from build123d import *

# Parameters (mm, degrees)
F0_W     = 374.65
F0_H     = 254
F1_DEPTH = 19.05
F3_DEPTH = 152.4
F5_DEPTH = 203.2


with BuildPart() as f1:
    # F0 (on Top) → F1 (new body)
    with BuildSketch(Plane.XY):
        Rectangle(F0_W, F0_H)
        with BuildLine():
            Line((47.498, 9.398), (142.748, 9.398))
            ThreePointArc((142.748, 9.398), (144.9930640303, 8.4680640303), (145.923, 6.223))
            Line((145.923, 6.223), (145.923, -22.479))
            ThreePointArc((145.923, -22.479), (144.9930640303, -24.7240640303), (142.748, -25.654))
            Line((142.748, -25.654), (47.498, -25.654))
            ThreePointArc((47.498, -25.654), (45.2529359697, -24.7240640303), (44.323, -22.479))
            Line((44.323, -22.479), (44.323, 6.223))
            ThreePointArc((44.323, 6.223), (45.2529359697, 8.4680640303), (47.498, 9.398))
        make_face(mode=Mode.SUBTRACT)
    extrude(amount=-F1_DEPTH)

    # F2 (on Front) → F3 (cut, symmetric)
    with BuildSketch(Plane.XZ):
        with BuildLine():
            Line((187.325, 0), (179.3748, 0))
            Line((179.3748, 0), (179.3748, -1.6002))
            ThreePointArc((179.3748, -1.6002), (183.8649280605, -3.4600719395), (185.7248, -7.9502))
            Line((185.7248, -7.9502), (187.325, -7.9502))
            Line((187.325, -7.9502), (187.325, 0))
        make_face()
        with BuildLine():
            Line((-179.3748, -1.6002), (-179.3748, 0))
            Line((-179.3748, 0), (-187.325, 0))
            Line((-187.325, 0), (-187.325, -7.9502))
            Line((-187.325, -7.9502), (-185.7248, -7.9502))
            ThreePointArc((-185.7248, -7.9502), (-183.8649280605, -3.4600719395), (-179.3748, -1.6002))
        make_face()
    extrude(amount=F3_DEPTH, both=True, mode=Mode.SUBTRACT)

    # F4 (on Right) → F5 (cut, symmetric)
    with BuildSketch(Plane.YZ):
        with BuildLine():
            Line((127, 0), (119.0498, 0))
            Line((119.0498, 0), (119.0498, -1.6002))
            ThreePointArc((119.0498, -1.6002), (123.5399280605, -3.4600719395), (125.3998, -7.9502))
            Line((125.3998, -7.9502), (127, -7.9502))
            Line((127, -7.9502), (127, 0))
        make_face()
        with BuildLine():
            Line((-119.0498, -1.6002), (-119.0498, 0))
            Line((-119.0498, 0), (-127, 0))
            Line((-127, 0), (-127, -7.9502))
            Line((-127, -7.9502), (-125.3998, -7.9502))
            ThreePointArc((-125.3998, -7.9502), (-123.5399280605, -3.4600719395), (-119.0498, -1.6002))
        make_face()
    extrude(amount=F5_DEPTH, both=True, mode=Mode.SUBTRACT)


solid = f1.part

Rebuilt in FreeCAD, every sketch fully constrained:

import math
import FreeCAD as App
import Part
import Sketcher
Q = App.Units.Quantity

doc = App.newDocument("Part")
body = doc.addObject("PartDesign::Body", "Body")

# Sketch on XY plane
sketch1 = body.newObject("Sketcher::SketchObject", "Sketch")
sketch1.AttachmentSupport = (doc.getObject("XY_Plane"), [""])
sketch1.MapMode = "FlatFace"
sketch1.addGeometry(Part.LineSegment(App.Vector(-187.3, 127, 0), App.Vector(-187.3, -127, 0)), False)
sketch1.addGeometry(Part.LineSegment(App.Vector(-187.3, -127, 0), App.Vector(187.3, -127, 0)), False)
sketch1.addGeometry(Part.LineSegment(App.Vector(187.3, -127, 0), App.Vector(187.3, 127, 0)), False)
sketch1.addGeometry(Part.LineSegment(App.Vector(187.3, 127, 0), App.Vector(-187.3, 127, 0)), False)
sketch1.addGeometry(Part.ArcOfCircle(Part.Circle(App.Vector(47.5, 6.2, 0), App.Vector(0, 0, 1), 3.2), math.radians(90), math.radians(180)), False)
sketch1.addGeometry(Part.LineSegment(App.Vector(47.5, 9.4, 0), App.Vector(142.7, 9.4, 0)), False)
sketch1.addGeometry(Part.ArcOfCircle(Part.Circle(App.Vector(142.7, 6.2, 0), App.Vector(0, 0, 1), 3.2), math.radians(0), math.radians(90)), False)
sketch1.addGeometry(Part.LineSegment(App.Vector(145.9, 6.2, 0), App.Vector(145.9, -22.5, 0)), False)
sketch1.addGeometry(Part.ArcOfCircle(Part.Circle(App.Vector(142.7, -22.5, 0), App.Vector(0, 0, 1), 3.2), math.radians(-90), math.radians(0)), False)
sketch1.addGeometry(Part.LineSegment(App.Vector(142.7, -25.7, 0), App.Vector(47.5, -25.7, 0)), False)
sketch1.addGeometry(Part.ArcOfCircle(Part.Circle(App.Vector(47.5, -22.5, 0), App.Vector(0, 0, 1), 3.2), math.radians(180), math.radians(270)), False)
sketch1.addGeometry(Part.LineSegment(App.Vector(44.3, -22.5, 0), App.Vector(44.3, 6.2, 0)), False)
sketch1.addConstraint(Sketcher.Constraint("Coincident", 0, 2, 1, 1))
sketch1.addConstraint(Sketcher.Constraint("Coincident", 1, 2, 2, 1))
sketch1.addConstraint(Sketcher.Constraint("Coincident", 2, 2, 3, 1))
sketch1.addConstraint(Sketcher.Constraint("Coincident", 3, 2, 0, 1))
sketch1.addConstraint(Sketcher.Constraint("Tangent", 4, 1, 5, 1))
sketch1.addConstraint(Sketcher.Constraint("Tangent", 5, 2, 6, 2))
sketch1.addConstraint(Sketcher.Constraint("Tangent", 6, 1, 7, 1))
sketch1.addConstraint(Sketcher.Constraint("Tangent", 7, 2, 8, 2))
sketch1.addConstraint(Sketcher.Constraint("Tangent", 8, 1, 9, 1))
sketch1.addConstraint(Sketcher.Constraint("Tangent", 9, 2, 10, 2))
sketch1.addConstraint(Sketcher.Constraint("Tangent", 10, 1, 11, 1))
sketch1.addConstraint(Sketcher.Constraint("Tangent", 11, 2, 4, 2))
sketch1.addConstraint(Sketcher.Constraint("Vertical", 0))
sketch1.addConstraint(Sketcher.Constraint("Horizontal", 1))
sketch1.addConstraint(Sketcher.Constraint("Vertical", 2))
sketch1.addConstraint(Sketcher.Constraint("Horizontal", 3))
sketch1.addConstraint(Sketcher.Constraint("Horizontal", 5))
sketch1.addConstraint(Sketcher.Constraint("Vertical", 7))
sketch1.addConstraint(Sketcher.Constraint("Horizontal", 9))
sketch1.addConstraint(Sketcher.Constraint("Vertical", 11))
sketch1.addConstraint(Sketcher.Constraint("Equal", 4, 6))
sketch1.addConstraint(Sketcher.Constraint("Equal", 6, 8))
sketch1.addConstraint(Sketcher.Constraint("Equal", 8, 10))
sketch1.addConstraint(Sketcher.Constraint("Symmetric", 0, 2, 2, 2, -1, 1))
sketch1.addConstraint(Sketcher.Constraint("DistanceY", 0, 2, 0, 1, Q("10 in")))
sketch1.addConstraint(Sketcher.Constraint("Radius", 4, Q("0.125 in")))
sketch1.addConstraint(Sketcher.Constraint("DistanceX", 1, 1, 1, 2, Q("14.75 in")))
sketch1.addConstraint(Sketcher.Constraint("DistanceX", 5, 1, 5, 2, Q("3.75 in")))
sketch1.addConstraint(Sketcher.Constraint("DistanceY", 7, 2, 7, 1, Q("1.13 in")))
sketch1.addConstraint(Sketcher.Constraint("DistanceX", -1, 1, 4, 3, Q("1.87 in")))
sketch1.addConstraint(Sketcher.Constraint("DistanceY", -1, 1, 4, 1, Q("0.37 in")))
pad1 = body.newObject("PartDesign::Pad", "Pad")
pad1.Profile = sketch1
pad1.Length = Q("0.75 in")
pad1.Reversed = True

# Sketch on XZ plane
sketch2 = body.newObject("Sketcher::SketchObject", "Sketch001")
sketch2.AttachmentSupport = (doc.getObject("XZ_Plane"), [""])
sketch2.MapMode = "FlatFace"
sketch2.addGeometry(Part.LineSegment(App.Vector(187.3, 0, 0), App.Vector(179.4, 0, 0)), False)
sketch2.addGeometry(Part.LineSegment(App.Vector(179.4, 0, 0), App.Vector(179.4, -1.6, 0)), False)
sketch2.addGeometry(Part.ArcOfCircle(Part.Circle(App.Vector(179.4, -8, 0), App.Vector(0, 0, 1), 6.3), math.radians(0), math.radians(90)), False)
sketch2.addGeometry(Part.LineSegment(App.Vector(185.7, -8, 0), App.Vector(187.3, -8, 0)), False)
sketch2.addGeometry(Part.LineSegment(App.Vector(187.3, -8, 0), App.Vector(187.3, 0, 0)), False)
sketch2.addGeometry(Part.LineSegment(App.Vector(-179.4, -1.6, 0), App.Vector(-179.4, 0, 0)), False)
sketch2.addGeometry(Part.LineSegment(App.Vector(-179.4, 0, 0), App.Vector(-187.3, 0, 0)), False)
sketch2.addGeometry(Part.LineSegment(App.Vector(-187.3, 0, 0), App.Vector(-187.3, -8, 0)), False)
sketch2.addGeometry(Part.LineSegment(App.Vector(-187.3, -8, 0), App.Vector(-185.7, -8, 0)), False)
sketch2.addGeometry(Part.ArcOfCircle(Part.Circle(App.Vector(-179.4, -8, 0), App.Vector(0, 0, 1), 6.3), math.radians(90), math.radians(180)), False)
sketch2.addConstraint(Sketcher.Constraint("Coincident", 0, 2, 1, 1))
sketch2.addConstraint(Sketcher.Constraint("Coincident", 1, 2, 2, 2))
sketch2.addConstraint(Sketcher.Constraint("Coincident", 2, 1, 3, 1))
sketch2.addConstraint(Sketcher.Constraint("Coincident", 3, 2, 4, 1))
sketch2.addConstraint(Sketcher.Constraint("Coincident", 4, 2, 0, 1))
sketch2.addConstraint(Sketcher.Constraint("Coincident", 5, 2, 6, 1))
sketch2.addConstraint(Sketcher.Constraint("Coincident", 6, 2, 7, 1))
sketch2.addConstraint(Sketcher.Constraint("Coincident", 7, 2, 8, 1))
sketch2.addConstraint(Sketcher.Constraint("Coincident", 8, 2, 9, 2))
sketch2.addConstraint(Sketcher.Constraint("Coincident", 9, 1, 5, 1))
sketch2.addConstraint(Sketcher.Constraint("Horizontal", 0))
sketch2.addConstraint(Sketcher.Constraint("Vertical", 1))
sketch2.addConstraint(Sketcher.Constraint("Horizontal", 3))
sketch2.addConstraint(Sketcher.Constraint("Vertical", 4))
sketch2.addConstraint(Sketcher.Constraint("Vertical", 5))
sketch2.addConstraint(Sketcher.Constraint("Horizontal", 6))
sketch2.addConstraint(Sketcher.Constraint("Vertical", 7))
sketch2.addConstraint(Sketcher.Constraint("Horizontal", 8))
sketch2.addConstraint(Sketcher.Constraint("Equal", 2, 9))
sketch2.addConstraint(Sketcher.Constraint("Symmetric", 0, 2, 5, 2, -1, 1))
sketch2.addConstraint(Sketcher.Constraint("Symmetric", 2, 3, 9, 3, -2))
sketch2.addConstraint(Sketcher.Constraint("Symmetric", 4, 2, 6, 2, -2))
sketch2.addConstraint(Sketcher.Constraint("Horizontal", 9, 3, 2, 1))
sketch2.addConstraint(Sketcher.Constraint("Horizontal", 3, 2, 7, 2))
sketch2.addConstraint(Sketcher.Constraint("Vertical", 2, 3, 0, 2))
sketch2.addConstraint(Sketcher.Constraint("Equal", 8, 1))
sketch2.addConstraint(Sketcher.Constraint("Radius", 2, Q("0.25 in")))
sketch2.addConstraint(Sketcher.Constraint("DistanceX", 0, 2, 0, 1, Q("0.313 in")))
sketch2.addConstraint(Sketcher.Constraint("DistanceX", -1, 1, 2, 3, Q("7.062 in")))
pocket1 = body.newObject("PartDesign::Pocket", "Pocket")
pocket1.Profile = sketch2
pocket1.Length = Q("12 in")
pocket1.Midplane = True

# Sketch on YZ plane
sketch3 = body.newObject("Sketcher::SketchObject", "Sketch002")
sketch3.AttachmentSupport = (doc.getObject("YZ_Plane"), [""])
sketch3.MapMode = "FlatFace"
sketch3.addGeometry(Part.LineSegment(App.Vector(127, 0, 0), App.Vector(119, 0, 0)), False)
sketch3.addGeometry(Part.LineSegment(App.Vector(119, 0, 0), App.Vector(119, -1.6, 0)), False)
sketch3.addGeometry(Part.ArcOfCircle(Part.Circle(App.Vector(119, -8, 0), App.Vector(0, 0, 1), 6.3), math.radians(0), math.radians(90)), False)
sketch3.addGeometry(Part.LineSegment(App.Vector(125.4, -8, 0), App.Vector(127, -8, 0)), False)
sketch3.addGeometry(Part.LineSegment(App.Vector(127, -8, 0), App.Vector(127, 0, 0)), False)
sketch3.addGeometry(Part.LineSegment(App.Vector(-119, -1.6, 0), App.Vector(-119, 0, 0)), False)
sketch3.addGeometry(Part.LineSegment(App.Vector(-119, 0, 0), App.Vector(-127, 0, 0)), False)
sketch3.addGeometry(Part.LineSegment(App.Vector(-127, 0, 0), App.Vector(-127, -8, 0)), False)
sketch3.addGeometry(Part.LineSegment(App.Vector(-127, -8, 0), App.Vector(-125.4, -8, 0)), False)
sketch3.addGeometry(Part.ArcOfCircle(Part.Circle(App.Vector(-119, -8, 0), App.Vector(0, 0, 1), 6.3), math.radians(90), math.radians(180)), False)
sketch3.addConstraint(Sketcher.Constraint("Coincident", 0, 2, 1, 1))
sketch3.addConstraint(Sketcher.Constraint("Coincident", 1, 2, 2, 2))
sketch3.addConstraint(Sketcher.Constraint("Coincident", 2, 1, 3, 1))
sketch3.addConstraint(Sketcher.Constraint("Coincident", 3, 2, 4, 1))
sketch3.addConstraint(Sketcher.Constraint("Coincident", 4, 2, 0, 1))
sketch3.addConstraint(Sketcher.Constraint("Coincident", 5, 2, 6, 1))
sketch3.addConstraint(Sketcher.Constraint("Coincident", 6, 2, 7, 1))
sketch3.addConstraint(Sketcher.Constraint("Coincident", 7, 2, 8, 1))
sketch3.addConstraint(Sketcher.Constraint("Coincident", 8, 2, 9, 2))
sketch3.addConstraint(Sketcher.Constraint("Coincident", 9, 1, 5, 1))
sketch3.addConstraint(Sketcher.Constraint("Horizontal", 0))
sketch3.addConstraint(Sketcher.Constraint("Vertical", 1))
sketch3.addConstraint(Sketcher.Constraint("Horizontal", 3))
sketch3.addConstraint(Sketcher.Constraint("Vertical", 4))
sketch3.addConstraint(Sketcher.Constraint("Vertical", 5))
sketch3.addConstraint(Sketcher.Constraint("Horizontal", 6))
sketch3.addConstraint(Sketcher.Constraint("Vertical", 7))
sketch3.addConstraint(Sketcher.Constraint("Horizontal", 8))
sketch3.addConstraint(Sketcher.Constraint("Equal", 2, 9))
sketch3.addConstraint(Sketcher.Constraint("Symmetric", 0, 2, 5, 2, -1, 1))
sketch3.addConstraint(Sketcher.Constraint("Symmetric", 2, 3, 9, 3, -2))
sketch3.addConstraint(Sketcher.Constraint("Symmetric", 4, 2, 6, 2, -2))
sketch3.addConstraint(Sketcher.Constraint("Horizontal", 9, 3, 2, 1))
sketch3.addConstraint(Sketcher.Constraint("Horizontal", 3, 2, 7, 2))
sketch3.addConstraint(Sketcher.Constraint("Vertical", 2, 3, 0, 2))
sketch3.addConstraint(Sketcher.Constraint("Equal", 8, 1))
sketch3.addConstraint(Sketcher.Constraint("Radius", 2, Q("0.25 in")))
sketch3.addConstraint(Sketcher.Constraint("DistanceX", -1, 1, 3, 2, Q("5 in")))
sketch3.addConstraint(Sketcher.Constraint("DistanceX", 0, 2, 0, 1, Q("0.313 in")))
pocket2 = body.newObject("PartDesign::Pocket", "Pocket001")
pocket2.Profile = sketch3
pocket2.Length = Q("16 in")
pocket2.Midplane = True

doc.recompute()
